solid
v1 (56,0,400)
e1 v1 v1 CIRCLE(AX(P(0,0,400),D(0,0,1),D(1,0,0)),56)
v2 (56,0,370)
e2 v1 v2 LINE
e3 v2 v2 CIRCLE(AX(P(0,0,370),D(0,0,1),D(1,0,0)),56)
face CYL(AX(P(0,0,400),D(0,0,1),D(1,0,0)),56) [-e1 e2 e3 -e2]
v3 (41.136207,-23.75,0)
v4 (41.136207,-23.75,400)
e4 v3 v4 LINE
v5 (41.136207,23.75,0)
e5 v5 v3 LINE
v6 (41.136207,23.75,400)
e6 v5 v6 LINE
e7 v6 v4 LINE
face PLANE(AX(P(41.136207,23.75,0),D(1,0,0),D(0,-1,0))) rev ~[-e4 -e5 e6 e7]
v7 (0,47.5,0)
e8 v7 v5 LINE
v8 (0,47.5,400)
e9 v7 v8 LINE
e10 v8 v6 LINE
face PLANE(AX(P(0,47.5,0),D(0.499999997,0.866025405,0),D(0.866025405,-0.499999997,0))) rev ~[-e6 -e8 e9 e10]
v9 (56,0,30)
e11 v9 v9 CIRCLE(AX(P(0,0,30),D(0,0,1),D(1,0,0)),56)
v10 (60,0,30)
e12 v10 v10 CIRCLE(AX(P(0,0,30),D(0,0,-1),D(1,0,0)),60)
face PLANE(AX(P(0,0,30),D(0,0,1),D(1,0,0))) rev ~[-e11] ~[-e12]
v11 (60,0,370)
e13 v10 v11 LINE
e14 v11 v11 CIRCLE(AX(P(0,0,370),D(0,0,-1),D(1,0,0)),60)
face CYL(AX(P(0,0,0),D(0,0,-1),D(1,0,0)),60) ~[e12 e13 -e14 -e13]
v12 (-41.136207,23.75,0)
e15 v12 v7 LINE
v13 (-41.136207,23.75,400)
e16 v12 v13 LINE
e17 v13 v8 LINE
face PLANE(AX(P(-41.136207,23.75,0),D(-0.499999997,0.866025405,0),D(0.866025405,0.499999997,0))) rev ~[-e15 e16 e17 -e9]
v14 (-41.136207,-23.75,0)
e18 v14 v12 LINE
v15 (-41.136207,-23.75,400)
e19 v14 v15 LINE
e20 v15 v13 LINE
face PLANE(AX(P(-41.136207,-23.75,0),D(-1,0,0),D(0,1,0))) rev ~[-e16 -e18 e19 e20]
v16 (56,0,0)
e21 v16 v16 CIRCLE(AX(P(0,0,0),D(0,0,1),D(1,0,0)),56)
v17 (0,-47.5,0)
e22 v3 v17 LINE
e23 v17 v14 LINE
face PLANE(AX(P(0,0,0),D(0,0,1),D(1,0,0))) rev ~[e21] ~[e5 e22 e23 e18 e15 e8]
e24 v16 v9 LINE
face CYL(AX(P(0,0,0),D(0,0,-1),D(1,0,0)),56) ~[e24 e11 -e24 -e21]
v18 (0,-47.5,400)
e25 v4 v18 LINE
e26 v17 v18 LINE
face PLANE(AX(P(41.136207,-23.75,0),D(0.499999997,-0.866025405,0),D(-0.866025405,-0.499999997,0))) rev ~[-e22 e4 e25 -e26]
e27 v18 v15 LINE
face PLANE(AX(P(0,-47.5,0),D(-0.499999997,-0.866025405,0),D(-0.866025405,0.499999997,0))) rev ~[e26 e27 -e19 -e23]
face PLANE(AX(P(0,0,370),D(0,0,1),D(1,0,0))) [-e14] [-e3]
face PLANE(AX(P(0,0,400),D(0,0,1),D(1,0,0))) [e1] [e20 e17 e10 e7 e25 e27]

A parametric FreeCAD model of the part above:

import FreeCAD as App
import Part
import Sketcher
from FreeCAD import Vector
Q = App.Units.Quantity

doc = App.newDocument("Part")
body = doc.addObject("PartDesign::Body", "Body")

sketch1 = body.newObject("Sketcher::SketchObject", "Sketch")
sketch1.AttachmentSupport = (doc.getObject("XY_Plane"), [""])
sketch1.MapMode = "FlatFace"
sketch1.addGeometry(Part.LineSegment(Vector(62, -36, 0), Vector(62, 36, 0)), False)
sketch1.addGeometry(Part.LineSegment(Vector(62, 36, 0), Vector(0, 72, 0)), False)
sketch1.addGeometry(Part.LineSegment(Vector(0, 72, 0), Vector(-62, 36, 0)), False)
sketch1.addGeometry(Part.LineSegment(Vector(-62, 36, 0), Vector(-62, -36, 0)), False)
sketch1.addGeometry(Part.LineSegment(Vector(-62, -36, 0), Vector(0, -72, 0)), False)
sketch1.addGeometry(Part.LineSegment(Vector(0, -72, 0), Vector(62, -36, 0)), False)
sketch1.addGeometry(Part.LineSegment(Vector(0, 48, 0), Vector(41, 24, 0)), False)
sketch1.addGeometry(Part.LineSegment(Vector(41, 24, 0), Vector(41, -24, 0)), False)
sketch1.addGeometry(Part.LineSegment(Vector(41, -24, 0), Vector(0, -48, 0)), False)
sketch1.addGeometry(Part.LineSegment(Vector(0, -48, 0), Vector(-41, -24, 0)), False)
sketch1.addGeometry(Part.LineSegment(Vector(-41, -24, 0), Vector(-41, 24, 0)), False)
sketch1.addGeometry(Part.LineSegment(Vector(-41, 24, 0), Vector(0, 48, 0)), False)
sketch1.addConstraint(Sketcher.Constraint("Coincident", 0, 2, 1, 1))
sketch1.addConstraint(Sketcher.Constraint("Coincident", 1, 2, 2, 1))
sketch1.addConstraint(Sketcher.Constraint("Coincident", 2, 2, 3, 1))
sketch1.addConstraint(Sketcher.Constraint("Coincident", 3, 2, 4, 1))
sketch1.addConstraint(Sketcher.Constraint("Coincident", 4, 2, 5, 1))
sketch1.addConstraint(Sketcher.Constraint("Coincident", 5, 2, 0, 1))
sketch1.addConstraint(Sketcher.Constraint("Coincident", 6, 2, 7, 1))
sketch1.addConstraint(Sketcher.Constraint("Coincident", 7, 2, 8, 1))
sketch1.addConstraint(Sketcher.Constraint("Coincident", 8, 2, 9, 1))
sketch1.addConstraint(Sketcher.Constraint("Coincident", 9, 2, 10, 1))
sketch1.addConstraint(Sketcher.Constraint("Coincident", 10, 2, 11, 1))
sketch1.addConstraint(Sketcher.Constraint("Coincident", 11, 2, 6, 1))
sketch1.addConstraint(Sketcher.Constraint("Vertical", 0))
sketch1.addConstraint(Sketcher.Constraint("Vertical", 3))
sketch1.addConstraint(Sketcher.Constraint("Vertical", 7))
sketch1.addConstraint(Sketcher.Constraint("Vertical", 10))
sketch1.addConstraint(Sketcher.Constraint("Symmetric", 0, 2, 3, 2, -1, 1))
sketch1.addConstraint(Sketcher.Constraint("Symmetric", 1, 2, 4, 2, -1, 1))
sketch1.addConstraint(Sketcher.Constraint("Symmetric", 6, 2, 9, 2, -1, 1))
sketch1.addConstraint(Sketcher.Constraint("Symmetric", 8, 2, 11, 2, -1, 1))
sketch1.addConstraint(Sketcher.Constraint("PointOnObject", 1, 2, -2))
sketch1.addConstraint(Sketcher.Constraint("PointOnObject", 8, 2, -2))
sketch1.addConstraint(Sketcher.Constraint("Parallel", 2, 5))
sketch1.addConstraint(Sketcher.Constraint("Parallel", 4, 6))
sketch1.addConstraint(Sketcher.Constraint("Parallel", 5, 8))
sketch1.addConstraint(Sketcher.Constraint("Parallel", 8, 11))
sketch1.addConstraint(Sketcher.Constraint("Horizontal", 0, 2, 2, 2))
sketch1.addConstraint(Sketcher.Constraint("Angle", 1, Q("150 deg")))
sketch1.addConstraint(Sketcher.Constraint("DistanceY", 7, 2, 7, 1, 47.5))
sketch1.addConstraint(Sketcher.Constraint("DistanceX", 2, 2, 0, 2, 125.0))
sketch1.addConstraint(Sketcher.Constraint("Distance", 6, 47.5))
sketch1.addConstraint(Sketcher.Constraint("DistanceY", 0, 1, 0, 2, 72.168784))
pad1 = body.newObject("PartDesign::Pad", "Pad")
pad1.Profile = sketch1
pad1.Length = 400

sketch2 = body.newObject("Sketcher::SketchObject", "Sketch001")
sketch2.AttachmentSupport = (doc.getObject("XY_Plane"), [""])
sketch2.MapMode = "FlatFace"
sketch2.addGeometry(Part.Circle(Vector(0, 0, 0), Vector(0, 0, 1), 92), False)
sketch2.addGeometry(Part.Circle(Vector(0, 0, 0), Vector(0, 0, 1), 60), False)
sketch2.addConstraint(Sketcher.Constraint("Coincident", 0, 3, -1, 1))
sketch2.addConstraint(Sketcher.Constraint("Coincident", 1, 3, -1, 1))
sketch2.addConstraint(Sketcher.Constraint("Diameter", 1, 120.0))
sketch2.addConstraint(Sketcher.Constraint("Diameter", 0, 183.121458))
pocket1 = body.newObject("PartDesign::Pocket", "Pocket")
pocket1.Profile = sketch2
pocket1.Type = "ThroughAll"
pocket1.Reversed = True

sketch3 = body.newObject("Sketcher::SketchObject", "Sketch002")
sketch3.AttachmentSupport = (doc.getObject("XY_Plane"), [""])
sketch3.MapMode = "FlatFace"
sketch3.addGeometry(Part.Circle(Vector(0, 0, 0), Vector(0, 0, 1), 159), False)
sketch3.addGeometry(Part.Circle(Vector(0, 0, 0), Vector(0, 0, 1), 56), False)
sketch3.addConstraint(Sketcher.Constraint("Coincident", 0, 3, -1, 1))
sketch3.addConstraint(Sketcher.Constraint("Coincident", 1, 3, -1, 1))
sketch3.addConstraint(Sketcher.Constraint("Diameter", 1, 112.0))
sketch3.addConstraint(Sketcher.Constraint("Diameter", 0, 318.65285))
pocket2 = body.newObject("PartDesign::Pocket", "Pocket001")
pocket2.Profile = sketch3
pocket2.Length = 30
pocket2.Reversed = True

sketch4 = body.newObject("Sketcher::SketchObject", "Sketch003")
sketch4.AttachmentSupport = (doc.getObject("XY_Plane"), [""])
sketch4.MapMode = "FlatFace"
sketch4.AttachmentOffset = App.Placement(Vector(0, 0, 400), App.Rotation())
sketch4.addGeometry(Part.Circle(Vector(0, 0, 0), Vector(0, 0, 1), 73), False)
sketch4.addGeometry(Part.Circle(Vector(0, 0, 0), Vector(0, 0, 1), 56), False)
sketch4.addConstraint(Sketcher.Constraint("Coincident", 0, 3, -1, 1))
sketch4.addConstraint(Sketcher.Constraint("Coincident", 1, 3, -1, 1))
sketch4.addConstraint(Sketcher.Constraint("Diameter", 1, 112.0))
sketch4.addConstraint(Sketcher.Constraint("Diameter", 0, 145.887))
pocket3 = body.newObject("PartDesign::Pocket", "Pocket002")
pocket3.Profile = sketch4
pocket3.Length = 30

doc.recompute()
